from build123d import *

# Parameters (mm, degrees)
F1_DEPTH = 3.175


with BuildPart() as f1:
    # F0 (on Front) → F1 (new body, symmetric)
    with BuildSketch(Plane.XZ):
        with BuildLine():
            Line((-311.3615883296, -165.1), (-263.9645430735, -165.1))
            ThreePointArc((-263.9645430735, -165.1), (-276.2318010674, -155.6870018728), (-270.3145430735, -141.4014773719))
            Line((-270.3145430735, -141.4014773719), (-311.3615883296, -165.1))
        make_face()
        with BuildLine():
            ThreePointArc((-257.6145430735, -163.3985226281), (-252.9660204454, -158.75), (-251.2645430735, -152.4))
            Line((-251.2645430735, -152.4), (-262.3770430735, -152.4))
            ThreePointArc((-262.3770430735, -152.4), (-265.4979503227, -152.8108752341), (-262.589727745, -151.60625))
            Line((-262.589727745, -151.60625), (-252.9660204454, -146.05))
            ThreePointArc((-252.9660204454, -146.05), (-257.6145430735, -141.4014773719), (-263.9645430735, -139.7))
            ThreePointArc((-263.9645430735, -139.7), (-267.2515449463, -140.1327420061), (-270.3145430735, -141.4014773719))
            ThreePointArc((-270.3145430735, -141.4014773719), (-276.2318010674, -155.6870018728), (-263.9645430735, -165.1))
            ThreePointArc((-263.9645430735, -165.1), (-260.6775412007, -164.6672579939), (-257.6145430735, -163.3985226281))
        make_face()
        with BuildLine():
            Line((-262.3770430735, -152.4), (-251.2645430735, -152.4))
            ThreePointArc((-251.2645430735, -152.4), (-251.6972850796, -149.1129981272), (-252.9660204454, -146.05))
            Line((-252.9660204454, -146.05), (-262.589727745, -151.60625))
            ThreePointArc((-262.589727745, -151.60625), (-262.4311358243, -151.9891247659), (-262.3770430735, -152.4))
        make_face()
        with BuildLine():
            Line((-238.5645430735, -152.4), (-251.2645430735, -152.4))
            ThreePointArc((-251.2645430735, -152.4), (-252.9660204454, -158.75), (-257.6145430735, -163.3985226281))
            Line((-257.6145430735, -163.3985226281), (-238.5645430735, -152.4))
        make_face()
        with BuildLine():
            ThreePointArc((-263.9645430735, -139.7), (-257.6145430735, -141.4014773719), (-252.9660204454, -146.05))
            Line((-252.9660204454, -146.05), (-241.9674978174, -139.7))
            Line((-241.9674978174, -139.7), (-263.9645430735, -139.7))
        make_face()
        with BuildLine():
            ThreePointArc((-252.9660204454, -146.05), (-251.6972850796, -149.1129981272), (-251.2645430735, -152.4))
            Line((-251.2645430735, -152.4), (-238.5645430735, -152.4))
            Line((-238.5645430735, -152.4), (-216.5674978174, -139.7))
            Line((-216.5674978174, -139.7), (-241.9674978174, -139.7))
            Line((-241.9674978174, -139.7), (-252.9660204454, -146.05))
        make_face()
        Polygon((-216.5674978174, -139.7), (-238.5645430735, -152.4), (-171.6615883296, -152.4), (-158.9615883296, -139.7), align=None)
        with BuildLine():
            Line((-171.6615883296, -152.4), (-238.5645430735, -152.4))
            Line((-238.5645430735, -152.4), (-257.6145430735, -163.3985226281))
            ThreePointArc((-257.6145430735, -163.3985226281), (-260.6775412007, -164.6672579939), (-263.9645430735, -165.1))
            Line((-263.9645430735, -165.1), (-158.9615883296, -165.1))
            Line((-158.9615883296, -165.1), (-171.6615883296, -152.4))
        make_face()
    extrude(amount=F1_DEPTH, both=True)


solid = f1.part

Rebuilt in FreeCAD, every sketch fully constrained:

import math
import FreeCAD as App
import Part
import Sketcher
Q = App.Units.Quantity

doc = App.newDocument("Part")
body = doc.addObject("PartDesign::Body", "Body")

# Sketch on XZ plane
sketch1 = body.newObject("Sketcher::SketchObject", "Sketch")
sketch1.AttachmentSupport = (doc.getObject("XZ_Plane"), [""])
sketch1.MapMode = "FlatFace"
sketch1.addGeometry(Part.LineSegment(App.Vector(-311.4, -165.1, 0), App.Vector(-159, -165.1, 0)), False)
sketch1.addGeometry(Part.LineSegment(App.Vector(-159, -165.1, 0), App.Vector(-171.7, -152.4, 0)), False)
sketch1.addGeometry(Part.LineSegment(App.Vector(-171.7, -152.4, 0), App.Vector(-159, -139.7, 0)), False)
sketch1.addGeometry(Part.LineSegment(App.Vector(-159, -139.7, 0), App.Vector(-264, -139.7, 0)), False)
sketch1.addGeometry(Part.ArcOfCircle(Part.Circle(App.Vector(-264, -152.4, 0), App.Vector(0, 0, 1), 12.7), math.radians(90), math.radians(120)), False)
sketch1.addGeometry(Part.LineSegment(App.Vector(-270.3, -141.4, 0), App.Vector(-311.4, -165.1, 0)), False)
sketch1.addGeometry(Part.ArcOfCircle(Part.Circle(App.Vector(-264, -152.4, 0), App.Vector(0, 0, 1), 1.6), math.radians(30), math.radians(360)), False)
sketch1.addGeometry(Part.ArcOfCircle(Part.Circle(App.Vector(-264, -152.4, 0), App.Vector(0, 0, 1), 1.6), math.radians(0), math.radians(30)), False)
sketch1.addConstraint(Sketcher.Constraint("Coincident", 0, 2, 1, 1))
sketch1.addConstraint(Sketcher.Constraint("Coincident", 1, 2, 2, 1))
sketch1.addConstraint(Sketcher.Constraint("Coincident", 2, 2, 3, 1))
sketch1.addConstraint(Sketcher.Constraint("Tangent", 3, 2, 4, 1))
sketch1.addConstraint(Sketcher.Constraint("Tangent", 4, 2, 5, 1))
sketch1.addConstraint(Sketcher.Constraint("Coincident", 5, 2, 0, 1))
sketch1.addConstraint(Sketcher.Constraint("Tangent", 6, 1, 7, 2))
sketch1.addConstraint(Sketcher.Constraint("Coincident", 7, 1, 6, 2))
sketch1.addConstraint(Sketcher.Constraint("Horizontal", 0))
sketch1.addConstraint(Sketcher.Constraint("Horizontal", 3))
sketch1.addConstraint(Sketcher.Constraint("Coincident", 6, 3, 4, 3))
sketch1.addConstraint(Sketcher.Constraint("Perpendicular", 1, 2))
sketch1.addConstraint(Sketcher.Constraint("Horizontal", 7, 3, 1, 2))
sketch1.addConstraint(Sketcher.Constraint("Horizontal", 1, 2, 7, 1))
sketch1.addConstraint(Sketcher.Constraint("Vertical", 0, 2, 2, 2))
sketch1.addConstraint(Sketcher.Constraint("Equal", 1, 2))
sketch1.addConstraint(Sketcher.Constraint("Radius", 4, Q("0.5 in")))
sketch1.addConstraint(Sketcher.Constraint("DistanceX", 0, 1, 0, 2, Q("6 in")))
sketch1.addConstraint(Sketcher.Constraint("DistanceY", 4, 3, -1, 1, Q("6 in")))
sketch1.addConstraint(Sketcher.Constraint("Angle", 5, Q("-150 deg")))
sketch1.addConstraint(Sketcher.Constraint("Radius", 6, Q("0.0625 in")))
sketch1.addConstraint(Sketcher.Constraint("DistanceY", 6, 1, -1, 1, Q("5.96875 in")))
sketch1.addConstraint(Sketcher.Constraint("DistanceX", 0, 2, -1, 1, 158.961588))
pad1 = body.newObject("PartDesign::Pad", "Pad")
pad1.Profile = sketch1
pad1.Length = Q("0.25 in")
pad1.Midplane = True

doc.recompute()
